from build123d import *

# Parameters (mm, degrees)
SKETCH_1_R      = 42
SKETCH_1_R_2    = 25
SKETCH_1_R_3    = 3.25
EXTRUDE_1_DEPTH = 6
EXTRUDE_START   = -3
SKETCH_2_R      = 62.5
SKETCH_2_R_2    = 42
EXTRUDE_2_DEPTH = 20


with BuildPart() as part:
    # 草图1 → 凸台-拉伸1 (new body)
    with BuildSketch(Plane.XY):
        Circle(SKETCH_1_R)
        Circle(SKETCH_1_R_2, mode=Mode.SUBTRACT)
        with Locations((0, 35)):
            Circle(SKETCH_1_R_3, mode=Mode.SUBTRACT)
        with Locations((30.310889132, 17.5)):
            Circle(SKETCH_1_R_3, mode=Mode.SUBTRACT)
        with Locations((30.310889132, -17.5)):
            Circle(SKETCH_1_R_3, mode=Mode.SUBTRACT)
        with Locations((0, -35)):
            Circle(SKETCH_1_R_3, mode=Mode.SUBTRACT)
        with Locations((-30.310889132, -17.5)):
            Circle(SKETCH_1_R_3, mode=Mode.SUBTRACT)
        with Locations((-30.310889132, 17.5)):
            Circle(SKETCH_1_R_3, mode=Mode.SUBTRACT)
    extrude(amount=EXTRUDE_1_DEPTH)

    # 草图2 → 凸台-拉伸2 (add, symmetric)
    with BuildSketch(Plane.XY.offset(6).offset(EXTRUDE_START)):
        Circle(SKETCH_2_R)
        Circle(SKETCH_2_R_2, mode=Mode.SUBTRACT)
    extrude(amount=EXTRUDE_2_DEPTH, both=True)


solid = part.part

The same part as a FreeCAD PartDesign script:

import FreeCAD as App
import Part
import Sketcher
Q = App.Units.Quantity

doc = App.newDocument("Part")
body = doc.addObject("PartDesign::Body", "Body")

# Sketch on XY plane
sketch1 = body.newObject("Sketcher::SketchObject", "Sketch")
sketch1.AttachmentSupport = (doc.getObject("XY_Plane"), [""])
sketch1.MapMode = "FlatFace"
sketch1.addGeometry([
    Part.Circle(App.Vector(0, 0, 0), App.Vector(0, 0, 1), 42),  # 0
    Part.Circle(App.Vector(-30.3, -17.5, 0), App.Vector(0, 0, 1), 3.2),  # 1
    Part.Circle(App.Vector(0, -35, 0), App.Vector(0, 0, 1), 3.2),  # 2
    Part.Circle(App.Vector(30.3, -17.5, 0), App.Vector(0, 0, 1), 3.2),  # 3
    Part.Circle(App.Vector(-30.3, 17.5, 0), App.Vector(0, 0, 1), 3.2),  # 4
    Part.Circle(App.Vector(0, 0, 0), App.Vector(0, 0, 1), 25),  # 5
    Part.Circle(App.Vector(30.3, 17.5, 0), App.Vector(0, 0, 1), 3.2),  # 6
    Part.Circle(App.Vector(0, 35, 0), App.Vector(0, 0, 1), 3.2),  # 7
], False)
sketch1.addConstraint([
    Sketcher.Constraint("Coincident", 0, 3, -1, 1),
    Sketcher.Constraint("Coincident", 5, 3, -1, 1),
    Sketcher.Constraint("Equal", 1, 2),
    Sketcher.Constraint("Equal", 2, 3),
    Sketcher.Constraint("Equal", 3, 4),
    Sketcher.Constraint("Equal", 4, 6),
    Sketcher.Constraint("Equal", 6, 7),
    Sketcher.Constraint("Symmetric", 3, 3, 4, 3, -1, 1),
    Sketcher.Constraint("Symmetric", 1, 3, 6, 3, -1, 1),
    Sketcher.Constraint("Symmetric", 2, 3, 7, 3, -1, 1),
    Sketcher.Constraint("Symmetric", 1, 3, 3, 3, -2),
    Sketcher.Constraint("PointOnObject", 2, 3, -2),
    Sketcher.Constraint("Diameter", 0, Q("84 mm")),
    Sketcher.Constraint("Diameter", 5, Q("50 mm")),
    Sketcher.Constraint("Diameter", 1, Q("6.5 mm")),
    Sketcher.Constraint("DistanceY", 2, 3, -1, 1, Q("35 mm")),
    Sketcher.Constraint("DistanceY", 1, 3, 4, 3, Q("35 mm")),
    Sketcher.Constraint("DistanceX", 1, 3, -1, 1, Q("30.310889 mm")),
])
pad1 = body.newObject("PartDesign::Pad", "Pad")
pad1.Profile = sketch1
pad1.Length = 6

# Sketch on XY plane
sketch2 = body.newObject("Sketcher::SketchObject", "Sketch001")
sketch2.AttachmentSupport = (doc.getObject("XY_Plane"), [""])
sketch2.MapMode = "FlatFace"
sketch2.AttachmentOffset = App.Placement(App.Vector(0, 0, 3), App.Rotation())
sketch2.addGeometry([
    Part.Circle(App.Vector(0, 0, 0), App.Vector(0, 0, 1), 62),
    Part.Circle(App.Vector(0, 0, 0), App.Vector(0, 0, 1), 42),
], False)
sketch2.addConstraint([
    Sketcher.Constraint("Coincident", 0, 3, -1, 1),
    Sketcher.Constraint("Coincident", 1, 3, -1, 1),
    Sketcher.Constraint("Diameter", 0, Q("125 mm")),
    Sketcher.Constraint("Diameter", 1, Q("84 mm")),
])
pad2 = body.newObject("PartDesign::Pad", "Pad001")
pad2.Profile = sketch2
pad2.Length = 40
pad2.Midplane = True

doc.recompute()
